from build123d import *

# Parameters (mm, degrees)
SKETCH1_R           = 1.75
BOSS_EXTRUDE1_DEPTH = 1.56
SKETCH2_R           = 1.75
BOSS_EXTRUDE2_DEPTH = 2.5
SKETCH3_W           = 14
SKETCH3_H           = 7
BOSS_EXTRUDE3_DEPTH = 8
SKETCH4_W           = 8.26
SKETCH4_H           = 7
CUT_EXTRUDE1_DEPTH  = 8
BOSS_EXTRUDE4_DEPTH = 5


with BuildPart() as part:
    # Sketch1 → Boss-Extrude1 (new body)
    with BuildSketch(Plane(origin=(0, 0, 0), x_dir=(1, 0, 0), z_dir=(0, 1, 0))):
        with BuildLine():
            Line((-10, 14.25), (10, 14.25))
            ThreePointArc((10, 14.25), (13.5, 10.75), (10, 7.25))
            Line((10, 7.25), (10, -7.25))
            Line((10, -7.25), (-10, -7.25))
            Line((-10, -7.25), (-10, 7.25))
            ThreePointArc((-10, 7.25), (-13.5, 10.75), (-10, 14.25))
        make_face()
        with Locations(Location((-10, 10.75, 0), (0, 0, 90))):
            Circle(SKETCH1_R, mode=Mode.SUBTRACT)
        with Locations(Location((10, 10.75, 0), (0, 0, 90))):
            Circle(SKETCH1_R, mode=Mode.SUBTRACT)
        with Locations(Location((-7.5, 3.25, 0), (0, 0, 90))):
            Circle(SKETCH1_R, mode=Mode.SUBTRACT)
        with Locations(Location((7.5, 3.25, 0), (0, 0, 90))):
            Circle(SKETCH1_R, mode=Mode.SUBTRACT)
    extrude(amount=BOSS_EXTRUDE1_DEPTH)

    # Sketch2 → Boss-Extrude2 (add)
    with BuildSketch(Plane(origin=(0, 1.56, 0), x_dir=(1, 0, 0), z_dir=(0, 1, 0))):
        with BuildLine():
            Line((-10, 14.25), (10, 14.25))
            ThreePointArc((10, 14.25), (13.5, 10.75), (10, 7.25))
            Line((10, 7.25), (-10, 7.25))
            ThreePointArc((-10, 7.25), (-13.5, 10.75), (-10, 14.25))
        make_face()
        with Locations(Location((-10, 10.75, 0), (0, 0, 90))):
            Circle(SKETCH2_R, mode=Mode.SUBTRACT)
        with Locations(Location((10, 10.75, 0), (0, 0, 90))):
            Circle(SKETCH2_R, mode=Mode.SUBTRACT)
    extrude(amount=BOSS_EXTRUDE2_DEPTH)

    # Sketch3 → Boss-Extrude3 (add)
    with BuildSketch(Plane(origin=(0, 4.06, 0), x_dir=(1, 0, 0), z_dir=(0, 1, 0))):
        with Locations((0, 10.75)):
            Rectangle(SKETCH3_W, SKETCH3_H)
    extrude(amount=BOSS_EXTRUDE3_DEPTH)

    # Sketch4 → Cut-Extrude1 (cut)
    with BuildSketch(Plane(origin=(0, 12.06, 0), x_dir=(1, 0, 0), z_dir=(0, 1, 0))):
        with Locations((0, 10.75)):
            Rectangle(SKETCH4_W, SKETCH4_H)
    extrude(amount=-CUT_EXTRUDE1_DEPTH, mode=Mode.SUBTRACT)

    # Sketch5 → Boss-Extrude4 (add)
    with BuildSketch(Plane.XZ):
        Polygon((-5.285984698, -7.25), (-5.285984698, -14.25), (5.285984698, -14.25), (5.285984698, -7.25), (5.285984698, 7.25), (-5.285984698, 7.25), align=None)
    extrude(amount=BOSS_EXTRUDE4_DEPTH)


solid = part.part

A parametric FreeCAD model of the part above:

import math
import FreeCAD as App
import Part
import Sketcher

V = App.Vector
Q = App.Units.Quantity


def add_polygon(sketch, points):
    """Adds a closed chain of lines whose ends are joined by coincident constraints."""
    first, n = sketch.GeometryCount, len(points)
    for a, b in zip(points, points[1:] + points[:1]):
        sketch.addGeometry(Part.LineSegment(App.Vector(*a, 0), App.Vector(*b, 0)), False)
    for i in range(n):
        sketch.addConstraint(Sketcher.Constraint("Coincident", first + i, 2, first + (i + 1) % n, 1))

doc = App.newDocument("Part")
params = doc.addObject("Spreadsheet::Sheet", "Params")
for row, (alias, value) in enumerate([
    ("sketch1_diameter", "3.5 mm"),
    ("sketch1_radius", "3.5 mm"),
    ("sketch1_width", "20 mm"),
    ("sketch1_height", "14.5 mm"),
    ("pad1_length", "1.56 mm"),
    ("sketch2_diameter", "3.5 mm"),
    ("sketch2_radius", "3.5 mm"),
    ("sketch2_width", "20 mm"),
    ("pad2_length", "2.5 mm"),
    ("sketch3_width", "14 mm"),
    ("sketch3_height", "7 mm"),
    ("pad3_length", "8 mm"),
    ("sketch4_height", "7 mm"),
    ("sketch4_width", "8.26 mm"),
    ("pocket1_length", "8 mm"),
    ("sketch5_height", "21.5 mm"),
    ("pad4_length", "5 mm"),
], start=1):
    params.set(f"A{row}", alias)
    params.set(f"B{row}", "=" + value)
    params.setAlias(f"B{row}", alias)

body = doc.addObject("PartDesign::Body", "Body")

# Sketch on XZ plane
sketch1 = body.newObject("Sketcher::SketchObject", "Sketch")
sketch1.AttachmentSupport = (doc.getObject("XZ_Plane"), [""])
sketch1.MapMode = "FlatFace"
sketch1.addGeometry([
    Part.LineSegment(V(10, -14.2, 0), V(-10, -14.2, 0)),  # 0
    Part.ArcOfCircle(Part.Circle(V(-10, -10.8, 0), V(0, 0, 1), 3.5), math.radians(90), math.radians(270)),  # 1
    Part.LineSegment(V(-10, -7.2, 0), V(-10, 7.2, 0)),  # 2
    Part.LineSegment(V(-10, 7.2, 0), V(10, 7.2, 0)),  # 3
    Part.LineSegment(V(10, 7.2, 0), V(10, -7.2, 0)),  # 4
    Part.ArcOfCircle(Part.Circle(V(10, -10.8, 0), V(0, 0, 1), 3.5), math.radians(-90), math.radians(90)),  # 5
    Part.Circle(V(7.5, -3.2, 0), V(0, 0, 1), 1.8),  # 6
    Part.Circle(V(-7.5, -3.2, 0), V(0, 0, 1), 1.8),  # 7
    Part.Circle(V(10, -10.8, 0), V(0, 0, 1), 1.8),  # 8
    Part.Circle(V(-10, -10.8, 0), V(0, 0, 1), 1.8),  # 9
], False)
sketch1.addConstraint([
    Sketcher.Constraint("Tangent", 0, 2, 1, 2),
    Sketcher.Constraint("Coincident", 1, 1, 2, 1),
    Sketcher.Constraint("Coincident", 2, 2, 3, 1),
    Sketcher.Constraint("Coincident", 3, 2, 4, 1),
    Sketcher.Constraint("Coincident", 4, 2, 5, 2),
    Sketcher.Constraint("Tangent", 5, 1, 0, 1),
    Sketcher.Constraint("Horizontal", 0),
    Sketcher.Constraint("Vertical", 2),
    Sketcher.Constraint("Horizontal", 3),
    Sketcher.Constraint("Vertical", 4),
    Sketcher.Constraint("Coincident", 8, 3, 5, 3),
    Sketcher.Constraint("Coincident", 9, 3, 1, 3),
    Sketcher.Constraint("Equal", 1, 5),
    Sketcher.Constraint("Equal", 6, 7),
    Sketcher.Constraint("Equal", 7, 8),
    Sketcher.Constraint("Equal", 8, 9),
    Sketcher.Constraint("Symmetric", 1, 1, 3, 2, -1, 1),
    Sketcher.Constraint("Symmetric", 6, 3, 7, 3, -2),
    Sketcher.Constraint("Vertical", 0, 2, 1, 1),
    Sketcher.Constraint("Vertical", 8, 3, 3, 2),
    Sketcher.Constraint("Diameter", 6, Q("3.5 mm")),
    Sketcher.Constraint("Radius", 1, Q("3.5 mm")),
    Sketcher.Constraint("DistanceX", 0, 2, 0, 1, Q("20 mm")),
    Sketcher.Constraint("DistanceY", 2, 1, 2, 2, Q("14.5 mm")),
    Sketcher.Constraint("DistanceX", 7, 3, 6, 3, Q("15 mm")),
    Sketcher.Constraint("DistanceY", 0, 2, 7, 3, Q("11 mm")),
])
sketch1.setExpression("Constraints[20]", "Params.sketch1_diameter")
sketch1.setExpression("Constraints[21]", "Params.sketch1_radius")
sketch1.setExpression("Constraints[22]", "Params.sketch1_width")
sketch1.setExpression("Constraints[23]", "Params.sketch1_height")
pad1 = body.newObject("PartDesign::Pad", "Pad")
pad1.Profile = sketch1
pad1.setExpression("Length", "Params.pad1_length")
pad1.Reversed = True

# Sketch on XZ plane
sketch2 = body.newObject("Sketcher::SketchObject", "Sketch001")
sketch2.AttachmentSupport = (doc.getObject("XZ_Plane"), [""])
sketch2.MapMode = "FlatFace"
sketch2.AttachmentOffset = App.Placement(V(0, 0, -1.56), App.Rotation())
sketch2.addGeometry([
    Part.LineSegment(V(10, -14.2, 0), V(-10, -14.2, 0)),  # 0
    Part.ArcOfCircle(Part.Circle(V(-10, -10.8, 0), V(0, 0, 1), 3.5), math.radians(90), math.radians(270)),  # 1
    Part.LineSegment(V(-10, -7.2, 0), V(10, -7.2, 0)),  # 2
    Part.ArcOfCircle(Part.Circle(V(10, -10.8, 0), V(0, 0, 1), 3.5), math.radians(-90), math.radians(90)),  # 3
    Part.Circle(V(10, -10.8, 0), V(0, 0, 1), 1.8),  # 4
    Part.Circle(V(-10, -10.8, 0), V(0, 0, 1), 1.8),  # 5
], False)
sketch2.addConstraint([
    Sketcher.Constraint("Tangent", 0, 2, 1, 2),
    Sketcher.Constraint("Tangent", 1, 1, 2, 1),
    Sketcher.Constraint("Tangent", 2, 2, 3, 2),
    Sketcher.Constraint("Tangent", 3, 1, 0, 1),
    Sketcher.Constraint("Horizontal", 0),
    Sketcher.Constraint("Horizontal", 2),
    Sketcher.Constraint("Coincident", 4, 3, 3, 3),
    Sketcher.Constraint("Coincident", 5, 3, 1, 3),
    Sketcher.Constraint("Equal", 4, 5),
    Sketcher.Constraint("Diameter", 4, Q("3.5 mm")),
    Sketcher.Constraint("Radius", 1, Q("3.5 mm")),
    Sketcher.Constraint("DistanceX", 0, 2, 0, 1, Q("20 mm")),
    Sketcher.Constraint("DistanceX", 1, 3, -1, 1, Q("10 mm")),
    Sketcher.Constraint("DistanceY", 1, 3, -1, 1, Q("10.75 mm")),
])
sketch2.setExpression("Constraints[9]", "Params.sketch2_diameter")
sketch2.setExpression("Constraints[10]", "Params.sketch2_radius")
sketch2.setExpression("Constraints[11]", "Params.sketch2_width")
pad2 = body.newObject("PartDesign::Pad", "Pad001")
pad2.Profile = sketch2
pad2.setExpression("Length", "Params.pad2_length")
pad2.Reversed = True

# Sketch on XZ plane
sketch3 = body.newObject("Sketcher::SketchObject", "Sketch002")
sketch3.AttachmentSupport = (doc.getObject("XZ_Plane"), [""])
sketch3.MapMode = "FlatFace"
sketch3.AttachmentOffset = App.Placement(V(0, 0, -4.06), App.Rotation())
add_polygon(sketch3, [(-7, -14), (-7, -7), (7, -7), (7, -14)])  # lines 0-3
sketch3.addConstraint([
    Sketcher.Constraint("Vertical", 0),
    Sketcher.Constraint("Horizontal", 1),
    Sketcher.Constraint("Vertical", 2),
    Sketcher.Constraint("Horizontal", 3),
    Sketcher.Constraint("DistanceX", 1, 1, 1, 2, Q("14 mm")),
    Sketcher.Constraint("DistanceY", 0, 1, 0, 2, Q("7 mm")),
    Sketcher.Constraint("DistanceX", 0, 2, -1, 1, Q("7 mm")),
    Sketcher.Constraint("DistanceY", 0, 2, -1, 1, Q("7.25 mm")),
])
sketch3.setExpression("Constraints[8]", "Params.sketch3_width")
sketch3.setExpression("Constraints[9]", "Params.sketch3_height")
pad3 = body.newObject("PartDesign::Pad", "Pad002")
pad3.Profile = sketch3
pad3.setExpression("Length", "Params.pad3_length")
pad3.Reversed = True

# Sketch on XZ plane
sketch4 = body.newObject("Sketcher::SketchObject", "Sketch003")
sketch4.AttachmentSupport = (doc.getObject("XZ_Plane"), [""])
sketch4.MapMode = "FlatFace"
sketch4.AttachmentOffset = App.Placement(V(0, 0, -12.06), App.Rotation())
add_polygon(sketch4, [(-4, -14), (-4, -7), (4, -7), (4, -14)])  # lines 0-3
sketch4.addConstraint([
    Sketcher.Constraint("Vertical", 0),
    Sketcher.Constraint("Horizontal", 1),
    Sketcher.Constraint("Vertical", 2),
    Sketcher.Constraint("Horizontal", 3),
    Sketcher.Constraint("DistanceY", 0, 1, 0, 2, Q("7 mm")),
    Sketcher.Constraint("DistanceX", 1, 1, 1, 2, Q("8.26 mm")),
    Sketcher.Constraint("DistanceX", 0, 2, -1, 1, Q("4.13 mm")),
    Sketcher.Constraint("DistanceY", 0, 2, -1, 1, Q("7.25 mm")),
])
sketch4.setExpression("Constraints[8]", "Params.sketch4_height")
sketch4.setExpression("Constraints[9]", "Params.sketch4_width")
pocket1 = body.newObject("PartDesign::Pocket", "Pocket")
pocket1.Profile = sketch4
pocket1.setExpression("Length", "Params.pocket1_length")
pocket1.Reversed = True

# Sketch on XZ plane
sketch5 = body.newObject("Sketcher::SketchObject", "Sketch004")
sketch5.AttachmentSupport = (doc.getObject("XZ_Plane"), [""])
sketch5.MapMode = "FlatFace"
add_polygon(sketch5, [(-5, -14), (5, -14), (5, 7), (-5, 7)])  # lines 0-3
sketch5.addConstraint([
    Sketcher.Constraint("Horizontal", 0),
    Sketcher.Constraint("Vertical", 1),
    Sketcher.Constraint("Horizontal", 2),
    Sketcher.Constraint("Vertical", 3),
    Sketcher.Constraint("DistanceY", 1, 1, 1, 2, Q("21.5 mm")),
    Sketcher.Constraint("DistanceY", 0, 2, -1, 1, Q("14.25 mm")),
    Sketcher.Constraint("DistanceX", 0, 1, 0, 2, Q("10.571969 mm")),
    Sketcher.Constraint("DistanceX", -1, 1, 0, 2, Q("5.285985 mm")),
])
sketch5.setExpression("Constraints[8]", "Params.sketch5_height")
pad4 = body.newObject("PartDesign::Pad", "Pad003")
pad4.Profile = sketch5
pad4.setExpression("Length", "Params.pad4_length")

doc.recompute()
